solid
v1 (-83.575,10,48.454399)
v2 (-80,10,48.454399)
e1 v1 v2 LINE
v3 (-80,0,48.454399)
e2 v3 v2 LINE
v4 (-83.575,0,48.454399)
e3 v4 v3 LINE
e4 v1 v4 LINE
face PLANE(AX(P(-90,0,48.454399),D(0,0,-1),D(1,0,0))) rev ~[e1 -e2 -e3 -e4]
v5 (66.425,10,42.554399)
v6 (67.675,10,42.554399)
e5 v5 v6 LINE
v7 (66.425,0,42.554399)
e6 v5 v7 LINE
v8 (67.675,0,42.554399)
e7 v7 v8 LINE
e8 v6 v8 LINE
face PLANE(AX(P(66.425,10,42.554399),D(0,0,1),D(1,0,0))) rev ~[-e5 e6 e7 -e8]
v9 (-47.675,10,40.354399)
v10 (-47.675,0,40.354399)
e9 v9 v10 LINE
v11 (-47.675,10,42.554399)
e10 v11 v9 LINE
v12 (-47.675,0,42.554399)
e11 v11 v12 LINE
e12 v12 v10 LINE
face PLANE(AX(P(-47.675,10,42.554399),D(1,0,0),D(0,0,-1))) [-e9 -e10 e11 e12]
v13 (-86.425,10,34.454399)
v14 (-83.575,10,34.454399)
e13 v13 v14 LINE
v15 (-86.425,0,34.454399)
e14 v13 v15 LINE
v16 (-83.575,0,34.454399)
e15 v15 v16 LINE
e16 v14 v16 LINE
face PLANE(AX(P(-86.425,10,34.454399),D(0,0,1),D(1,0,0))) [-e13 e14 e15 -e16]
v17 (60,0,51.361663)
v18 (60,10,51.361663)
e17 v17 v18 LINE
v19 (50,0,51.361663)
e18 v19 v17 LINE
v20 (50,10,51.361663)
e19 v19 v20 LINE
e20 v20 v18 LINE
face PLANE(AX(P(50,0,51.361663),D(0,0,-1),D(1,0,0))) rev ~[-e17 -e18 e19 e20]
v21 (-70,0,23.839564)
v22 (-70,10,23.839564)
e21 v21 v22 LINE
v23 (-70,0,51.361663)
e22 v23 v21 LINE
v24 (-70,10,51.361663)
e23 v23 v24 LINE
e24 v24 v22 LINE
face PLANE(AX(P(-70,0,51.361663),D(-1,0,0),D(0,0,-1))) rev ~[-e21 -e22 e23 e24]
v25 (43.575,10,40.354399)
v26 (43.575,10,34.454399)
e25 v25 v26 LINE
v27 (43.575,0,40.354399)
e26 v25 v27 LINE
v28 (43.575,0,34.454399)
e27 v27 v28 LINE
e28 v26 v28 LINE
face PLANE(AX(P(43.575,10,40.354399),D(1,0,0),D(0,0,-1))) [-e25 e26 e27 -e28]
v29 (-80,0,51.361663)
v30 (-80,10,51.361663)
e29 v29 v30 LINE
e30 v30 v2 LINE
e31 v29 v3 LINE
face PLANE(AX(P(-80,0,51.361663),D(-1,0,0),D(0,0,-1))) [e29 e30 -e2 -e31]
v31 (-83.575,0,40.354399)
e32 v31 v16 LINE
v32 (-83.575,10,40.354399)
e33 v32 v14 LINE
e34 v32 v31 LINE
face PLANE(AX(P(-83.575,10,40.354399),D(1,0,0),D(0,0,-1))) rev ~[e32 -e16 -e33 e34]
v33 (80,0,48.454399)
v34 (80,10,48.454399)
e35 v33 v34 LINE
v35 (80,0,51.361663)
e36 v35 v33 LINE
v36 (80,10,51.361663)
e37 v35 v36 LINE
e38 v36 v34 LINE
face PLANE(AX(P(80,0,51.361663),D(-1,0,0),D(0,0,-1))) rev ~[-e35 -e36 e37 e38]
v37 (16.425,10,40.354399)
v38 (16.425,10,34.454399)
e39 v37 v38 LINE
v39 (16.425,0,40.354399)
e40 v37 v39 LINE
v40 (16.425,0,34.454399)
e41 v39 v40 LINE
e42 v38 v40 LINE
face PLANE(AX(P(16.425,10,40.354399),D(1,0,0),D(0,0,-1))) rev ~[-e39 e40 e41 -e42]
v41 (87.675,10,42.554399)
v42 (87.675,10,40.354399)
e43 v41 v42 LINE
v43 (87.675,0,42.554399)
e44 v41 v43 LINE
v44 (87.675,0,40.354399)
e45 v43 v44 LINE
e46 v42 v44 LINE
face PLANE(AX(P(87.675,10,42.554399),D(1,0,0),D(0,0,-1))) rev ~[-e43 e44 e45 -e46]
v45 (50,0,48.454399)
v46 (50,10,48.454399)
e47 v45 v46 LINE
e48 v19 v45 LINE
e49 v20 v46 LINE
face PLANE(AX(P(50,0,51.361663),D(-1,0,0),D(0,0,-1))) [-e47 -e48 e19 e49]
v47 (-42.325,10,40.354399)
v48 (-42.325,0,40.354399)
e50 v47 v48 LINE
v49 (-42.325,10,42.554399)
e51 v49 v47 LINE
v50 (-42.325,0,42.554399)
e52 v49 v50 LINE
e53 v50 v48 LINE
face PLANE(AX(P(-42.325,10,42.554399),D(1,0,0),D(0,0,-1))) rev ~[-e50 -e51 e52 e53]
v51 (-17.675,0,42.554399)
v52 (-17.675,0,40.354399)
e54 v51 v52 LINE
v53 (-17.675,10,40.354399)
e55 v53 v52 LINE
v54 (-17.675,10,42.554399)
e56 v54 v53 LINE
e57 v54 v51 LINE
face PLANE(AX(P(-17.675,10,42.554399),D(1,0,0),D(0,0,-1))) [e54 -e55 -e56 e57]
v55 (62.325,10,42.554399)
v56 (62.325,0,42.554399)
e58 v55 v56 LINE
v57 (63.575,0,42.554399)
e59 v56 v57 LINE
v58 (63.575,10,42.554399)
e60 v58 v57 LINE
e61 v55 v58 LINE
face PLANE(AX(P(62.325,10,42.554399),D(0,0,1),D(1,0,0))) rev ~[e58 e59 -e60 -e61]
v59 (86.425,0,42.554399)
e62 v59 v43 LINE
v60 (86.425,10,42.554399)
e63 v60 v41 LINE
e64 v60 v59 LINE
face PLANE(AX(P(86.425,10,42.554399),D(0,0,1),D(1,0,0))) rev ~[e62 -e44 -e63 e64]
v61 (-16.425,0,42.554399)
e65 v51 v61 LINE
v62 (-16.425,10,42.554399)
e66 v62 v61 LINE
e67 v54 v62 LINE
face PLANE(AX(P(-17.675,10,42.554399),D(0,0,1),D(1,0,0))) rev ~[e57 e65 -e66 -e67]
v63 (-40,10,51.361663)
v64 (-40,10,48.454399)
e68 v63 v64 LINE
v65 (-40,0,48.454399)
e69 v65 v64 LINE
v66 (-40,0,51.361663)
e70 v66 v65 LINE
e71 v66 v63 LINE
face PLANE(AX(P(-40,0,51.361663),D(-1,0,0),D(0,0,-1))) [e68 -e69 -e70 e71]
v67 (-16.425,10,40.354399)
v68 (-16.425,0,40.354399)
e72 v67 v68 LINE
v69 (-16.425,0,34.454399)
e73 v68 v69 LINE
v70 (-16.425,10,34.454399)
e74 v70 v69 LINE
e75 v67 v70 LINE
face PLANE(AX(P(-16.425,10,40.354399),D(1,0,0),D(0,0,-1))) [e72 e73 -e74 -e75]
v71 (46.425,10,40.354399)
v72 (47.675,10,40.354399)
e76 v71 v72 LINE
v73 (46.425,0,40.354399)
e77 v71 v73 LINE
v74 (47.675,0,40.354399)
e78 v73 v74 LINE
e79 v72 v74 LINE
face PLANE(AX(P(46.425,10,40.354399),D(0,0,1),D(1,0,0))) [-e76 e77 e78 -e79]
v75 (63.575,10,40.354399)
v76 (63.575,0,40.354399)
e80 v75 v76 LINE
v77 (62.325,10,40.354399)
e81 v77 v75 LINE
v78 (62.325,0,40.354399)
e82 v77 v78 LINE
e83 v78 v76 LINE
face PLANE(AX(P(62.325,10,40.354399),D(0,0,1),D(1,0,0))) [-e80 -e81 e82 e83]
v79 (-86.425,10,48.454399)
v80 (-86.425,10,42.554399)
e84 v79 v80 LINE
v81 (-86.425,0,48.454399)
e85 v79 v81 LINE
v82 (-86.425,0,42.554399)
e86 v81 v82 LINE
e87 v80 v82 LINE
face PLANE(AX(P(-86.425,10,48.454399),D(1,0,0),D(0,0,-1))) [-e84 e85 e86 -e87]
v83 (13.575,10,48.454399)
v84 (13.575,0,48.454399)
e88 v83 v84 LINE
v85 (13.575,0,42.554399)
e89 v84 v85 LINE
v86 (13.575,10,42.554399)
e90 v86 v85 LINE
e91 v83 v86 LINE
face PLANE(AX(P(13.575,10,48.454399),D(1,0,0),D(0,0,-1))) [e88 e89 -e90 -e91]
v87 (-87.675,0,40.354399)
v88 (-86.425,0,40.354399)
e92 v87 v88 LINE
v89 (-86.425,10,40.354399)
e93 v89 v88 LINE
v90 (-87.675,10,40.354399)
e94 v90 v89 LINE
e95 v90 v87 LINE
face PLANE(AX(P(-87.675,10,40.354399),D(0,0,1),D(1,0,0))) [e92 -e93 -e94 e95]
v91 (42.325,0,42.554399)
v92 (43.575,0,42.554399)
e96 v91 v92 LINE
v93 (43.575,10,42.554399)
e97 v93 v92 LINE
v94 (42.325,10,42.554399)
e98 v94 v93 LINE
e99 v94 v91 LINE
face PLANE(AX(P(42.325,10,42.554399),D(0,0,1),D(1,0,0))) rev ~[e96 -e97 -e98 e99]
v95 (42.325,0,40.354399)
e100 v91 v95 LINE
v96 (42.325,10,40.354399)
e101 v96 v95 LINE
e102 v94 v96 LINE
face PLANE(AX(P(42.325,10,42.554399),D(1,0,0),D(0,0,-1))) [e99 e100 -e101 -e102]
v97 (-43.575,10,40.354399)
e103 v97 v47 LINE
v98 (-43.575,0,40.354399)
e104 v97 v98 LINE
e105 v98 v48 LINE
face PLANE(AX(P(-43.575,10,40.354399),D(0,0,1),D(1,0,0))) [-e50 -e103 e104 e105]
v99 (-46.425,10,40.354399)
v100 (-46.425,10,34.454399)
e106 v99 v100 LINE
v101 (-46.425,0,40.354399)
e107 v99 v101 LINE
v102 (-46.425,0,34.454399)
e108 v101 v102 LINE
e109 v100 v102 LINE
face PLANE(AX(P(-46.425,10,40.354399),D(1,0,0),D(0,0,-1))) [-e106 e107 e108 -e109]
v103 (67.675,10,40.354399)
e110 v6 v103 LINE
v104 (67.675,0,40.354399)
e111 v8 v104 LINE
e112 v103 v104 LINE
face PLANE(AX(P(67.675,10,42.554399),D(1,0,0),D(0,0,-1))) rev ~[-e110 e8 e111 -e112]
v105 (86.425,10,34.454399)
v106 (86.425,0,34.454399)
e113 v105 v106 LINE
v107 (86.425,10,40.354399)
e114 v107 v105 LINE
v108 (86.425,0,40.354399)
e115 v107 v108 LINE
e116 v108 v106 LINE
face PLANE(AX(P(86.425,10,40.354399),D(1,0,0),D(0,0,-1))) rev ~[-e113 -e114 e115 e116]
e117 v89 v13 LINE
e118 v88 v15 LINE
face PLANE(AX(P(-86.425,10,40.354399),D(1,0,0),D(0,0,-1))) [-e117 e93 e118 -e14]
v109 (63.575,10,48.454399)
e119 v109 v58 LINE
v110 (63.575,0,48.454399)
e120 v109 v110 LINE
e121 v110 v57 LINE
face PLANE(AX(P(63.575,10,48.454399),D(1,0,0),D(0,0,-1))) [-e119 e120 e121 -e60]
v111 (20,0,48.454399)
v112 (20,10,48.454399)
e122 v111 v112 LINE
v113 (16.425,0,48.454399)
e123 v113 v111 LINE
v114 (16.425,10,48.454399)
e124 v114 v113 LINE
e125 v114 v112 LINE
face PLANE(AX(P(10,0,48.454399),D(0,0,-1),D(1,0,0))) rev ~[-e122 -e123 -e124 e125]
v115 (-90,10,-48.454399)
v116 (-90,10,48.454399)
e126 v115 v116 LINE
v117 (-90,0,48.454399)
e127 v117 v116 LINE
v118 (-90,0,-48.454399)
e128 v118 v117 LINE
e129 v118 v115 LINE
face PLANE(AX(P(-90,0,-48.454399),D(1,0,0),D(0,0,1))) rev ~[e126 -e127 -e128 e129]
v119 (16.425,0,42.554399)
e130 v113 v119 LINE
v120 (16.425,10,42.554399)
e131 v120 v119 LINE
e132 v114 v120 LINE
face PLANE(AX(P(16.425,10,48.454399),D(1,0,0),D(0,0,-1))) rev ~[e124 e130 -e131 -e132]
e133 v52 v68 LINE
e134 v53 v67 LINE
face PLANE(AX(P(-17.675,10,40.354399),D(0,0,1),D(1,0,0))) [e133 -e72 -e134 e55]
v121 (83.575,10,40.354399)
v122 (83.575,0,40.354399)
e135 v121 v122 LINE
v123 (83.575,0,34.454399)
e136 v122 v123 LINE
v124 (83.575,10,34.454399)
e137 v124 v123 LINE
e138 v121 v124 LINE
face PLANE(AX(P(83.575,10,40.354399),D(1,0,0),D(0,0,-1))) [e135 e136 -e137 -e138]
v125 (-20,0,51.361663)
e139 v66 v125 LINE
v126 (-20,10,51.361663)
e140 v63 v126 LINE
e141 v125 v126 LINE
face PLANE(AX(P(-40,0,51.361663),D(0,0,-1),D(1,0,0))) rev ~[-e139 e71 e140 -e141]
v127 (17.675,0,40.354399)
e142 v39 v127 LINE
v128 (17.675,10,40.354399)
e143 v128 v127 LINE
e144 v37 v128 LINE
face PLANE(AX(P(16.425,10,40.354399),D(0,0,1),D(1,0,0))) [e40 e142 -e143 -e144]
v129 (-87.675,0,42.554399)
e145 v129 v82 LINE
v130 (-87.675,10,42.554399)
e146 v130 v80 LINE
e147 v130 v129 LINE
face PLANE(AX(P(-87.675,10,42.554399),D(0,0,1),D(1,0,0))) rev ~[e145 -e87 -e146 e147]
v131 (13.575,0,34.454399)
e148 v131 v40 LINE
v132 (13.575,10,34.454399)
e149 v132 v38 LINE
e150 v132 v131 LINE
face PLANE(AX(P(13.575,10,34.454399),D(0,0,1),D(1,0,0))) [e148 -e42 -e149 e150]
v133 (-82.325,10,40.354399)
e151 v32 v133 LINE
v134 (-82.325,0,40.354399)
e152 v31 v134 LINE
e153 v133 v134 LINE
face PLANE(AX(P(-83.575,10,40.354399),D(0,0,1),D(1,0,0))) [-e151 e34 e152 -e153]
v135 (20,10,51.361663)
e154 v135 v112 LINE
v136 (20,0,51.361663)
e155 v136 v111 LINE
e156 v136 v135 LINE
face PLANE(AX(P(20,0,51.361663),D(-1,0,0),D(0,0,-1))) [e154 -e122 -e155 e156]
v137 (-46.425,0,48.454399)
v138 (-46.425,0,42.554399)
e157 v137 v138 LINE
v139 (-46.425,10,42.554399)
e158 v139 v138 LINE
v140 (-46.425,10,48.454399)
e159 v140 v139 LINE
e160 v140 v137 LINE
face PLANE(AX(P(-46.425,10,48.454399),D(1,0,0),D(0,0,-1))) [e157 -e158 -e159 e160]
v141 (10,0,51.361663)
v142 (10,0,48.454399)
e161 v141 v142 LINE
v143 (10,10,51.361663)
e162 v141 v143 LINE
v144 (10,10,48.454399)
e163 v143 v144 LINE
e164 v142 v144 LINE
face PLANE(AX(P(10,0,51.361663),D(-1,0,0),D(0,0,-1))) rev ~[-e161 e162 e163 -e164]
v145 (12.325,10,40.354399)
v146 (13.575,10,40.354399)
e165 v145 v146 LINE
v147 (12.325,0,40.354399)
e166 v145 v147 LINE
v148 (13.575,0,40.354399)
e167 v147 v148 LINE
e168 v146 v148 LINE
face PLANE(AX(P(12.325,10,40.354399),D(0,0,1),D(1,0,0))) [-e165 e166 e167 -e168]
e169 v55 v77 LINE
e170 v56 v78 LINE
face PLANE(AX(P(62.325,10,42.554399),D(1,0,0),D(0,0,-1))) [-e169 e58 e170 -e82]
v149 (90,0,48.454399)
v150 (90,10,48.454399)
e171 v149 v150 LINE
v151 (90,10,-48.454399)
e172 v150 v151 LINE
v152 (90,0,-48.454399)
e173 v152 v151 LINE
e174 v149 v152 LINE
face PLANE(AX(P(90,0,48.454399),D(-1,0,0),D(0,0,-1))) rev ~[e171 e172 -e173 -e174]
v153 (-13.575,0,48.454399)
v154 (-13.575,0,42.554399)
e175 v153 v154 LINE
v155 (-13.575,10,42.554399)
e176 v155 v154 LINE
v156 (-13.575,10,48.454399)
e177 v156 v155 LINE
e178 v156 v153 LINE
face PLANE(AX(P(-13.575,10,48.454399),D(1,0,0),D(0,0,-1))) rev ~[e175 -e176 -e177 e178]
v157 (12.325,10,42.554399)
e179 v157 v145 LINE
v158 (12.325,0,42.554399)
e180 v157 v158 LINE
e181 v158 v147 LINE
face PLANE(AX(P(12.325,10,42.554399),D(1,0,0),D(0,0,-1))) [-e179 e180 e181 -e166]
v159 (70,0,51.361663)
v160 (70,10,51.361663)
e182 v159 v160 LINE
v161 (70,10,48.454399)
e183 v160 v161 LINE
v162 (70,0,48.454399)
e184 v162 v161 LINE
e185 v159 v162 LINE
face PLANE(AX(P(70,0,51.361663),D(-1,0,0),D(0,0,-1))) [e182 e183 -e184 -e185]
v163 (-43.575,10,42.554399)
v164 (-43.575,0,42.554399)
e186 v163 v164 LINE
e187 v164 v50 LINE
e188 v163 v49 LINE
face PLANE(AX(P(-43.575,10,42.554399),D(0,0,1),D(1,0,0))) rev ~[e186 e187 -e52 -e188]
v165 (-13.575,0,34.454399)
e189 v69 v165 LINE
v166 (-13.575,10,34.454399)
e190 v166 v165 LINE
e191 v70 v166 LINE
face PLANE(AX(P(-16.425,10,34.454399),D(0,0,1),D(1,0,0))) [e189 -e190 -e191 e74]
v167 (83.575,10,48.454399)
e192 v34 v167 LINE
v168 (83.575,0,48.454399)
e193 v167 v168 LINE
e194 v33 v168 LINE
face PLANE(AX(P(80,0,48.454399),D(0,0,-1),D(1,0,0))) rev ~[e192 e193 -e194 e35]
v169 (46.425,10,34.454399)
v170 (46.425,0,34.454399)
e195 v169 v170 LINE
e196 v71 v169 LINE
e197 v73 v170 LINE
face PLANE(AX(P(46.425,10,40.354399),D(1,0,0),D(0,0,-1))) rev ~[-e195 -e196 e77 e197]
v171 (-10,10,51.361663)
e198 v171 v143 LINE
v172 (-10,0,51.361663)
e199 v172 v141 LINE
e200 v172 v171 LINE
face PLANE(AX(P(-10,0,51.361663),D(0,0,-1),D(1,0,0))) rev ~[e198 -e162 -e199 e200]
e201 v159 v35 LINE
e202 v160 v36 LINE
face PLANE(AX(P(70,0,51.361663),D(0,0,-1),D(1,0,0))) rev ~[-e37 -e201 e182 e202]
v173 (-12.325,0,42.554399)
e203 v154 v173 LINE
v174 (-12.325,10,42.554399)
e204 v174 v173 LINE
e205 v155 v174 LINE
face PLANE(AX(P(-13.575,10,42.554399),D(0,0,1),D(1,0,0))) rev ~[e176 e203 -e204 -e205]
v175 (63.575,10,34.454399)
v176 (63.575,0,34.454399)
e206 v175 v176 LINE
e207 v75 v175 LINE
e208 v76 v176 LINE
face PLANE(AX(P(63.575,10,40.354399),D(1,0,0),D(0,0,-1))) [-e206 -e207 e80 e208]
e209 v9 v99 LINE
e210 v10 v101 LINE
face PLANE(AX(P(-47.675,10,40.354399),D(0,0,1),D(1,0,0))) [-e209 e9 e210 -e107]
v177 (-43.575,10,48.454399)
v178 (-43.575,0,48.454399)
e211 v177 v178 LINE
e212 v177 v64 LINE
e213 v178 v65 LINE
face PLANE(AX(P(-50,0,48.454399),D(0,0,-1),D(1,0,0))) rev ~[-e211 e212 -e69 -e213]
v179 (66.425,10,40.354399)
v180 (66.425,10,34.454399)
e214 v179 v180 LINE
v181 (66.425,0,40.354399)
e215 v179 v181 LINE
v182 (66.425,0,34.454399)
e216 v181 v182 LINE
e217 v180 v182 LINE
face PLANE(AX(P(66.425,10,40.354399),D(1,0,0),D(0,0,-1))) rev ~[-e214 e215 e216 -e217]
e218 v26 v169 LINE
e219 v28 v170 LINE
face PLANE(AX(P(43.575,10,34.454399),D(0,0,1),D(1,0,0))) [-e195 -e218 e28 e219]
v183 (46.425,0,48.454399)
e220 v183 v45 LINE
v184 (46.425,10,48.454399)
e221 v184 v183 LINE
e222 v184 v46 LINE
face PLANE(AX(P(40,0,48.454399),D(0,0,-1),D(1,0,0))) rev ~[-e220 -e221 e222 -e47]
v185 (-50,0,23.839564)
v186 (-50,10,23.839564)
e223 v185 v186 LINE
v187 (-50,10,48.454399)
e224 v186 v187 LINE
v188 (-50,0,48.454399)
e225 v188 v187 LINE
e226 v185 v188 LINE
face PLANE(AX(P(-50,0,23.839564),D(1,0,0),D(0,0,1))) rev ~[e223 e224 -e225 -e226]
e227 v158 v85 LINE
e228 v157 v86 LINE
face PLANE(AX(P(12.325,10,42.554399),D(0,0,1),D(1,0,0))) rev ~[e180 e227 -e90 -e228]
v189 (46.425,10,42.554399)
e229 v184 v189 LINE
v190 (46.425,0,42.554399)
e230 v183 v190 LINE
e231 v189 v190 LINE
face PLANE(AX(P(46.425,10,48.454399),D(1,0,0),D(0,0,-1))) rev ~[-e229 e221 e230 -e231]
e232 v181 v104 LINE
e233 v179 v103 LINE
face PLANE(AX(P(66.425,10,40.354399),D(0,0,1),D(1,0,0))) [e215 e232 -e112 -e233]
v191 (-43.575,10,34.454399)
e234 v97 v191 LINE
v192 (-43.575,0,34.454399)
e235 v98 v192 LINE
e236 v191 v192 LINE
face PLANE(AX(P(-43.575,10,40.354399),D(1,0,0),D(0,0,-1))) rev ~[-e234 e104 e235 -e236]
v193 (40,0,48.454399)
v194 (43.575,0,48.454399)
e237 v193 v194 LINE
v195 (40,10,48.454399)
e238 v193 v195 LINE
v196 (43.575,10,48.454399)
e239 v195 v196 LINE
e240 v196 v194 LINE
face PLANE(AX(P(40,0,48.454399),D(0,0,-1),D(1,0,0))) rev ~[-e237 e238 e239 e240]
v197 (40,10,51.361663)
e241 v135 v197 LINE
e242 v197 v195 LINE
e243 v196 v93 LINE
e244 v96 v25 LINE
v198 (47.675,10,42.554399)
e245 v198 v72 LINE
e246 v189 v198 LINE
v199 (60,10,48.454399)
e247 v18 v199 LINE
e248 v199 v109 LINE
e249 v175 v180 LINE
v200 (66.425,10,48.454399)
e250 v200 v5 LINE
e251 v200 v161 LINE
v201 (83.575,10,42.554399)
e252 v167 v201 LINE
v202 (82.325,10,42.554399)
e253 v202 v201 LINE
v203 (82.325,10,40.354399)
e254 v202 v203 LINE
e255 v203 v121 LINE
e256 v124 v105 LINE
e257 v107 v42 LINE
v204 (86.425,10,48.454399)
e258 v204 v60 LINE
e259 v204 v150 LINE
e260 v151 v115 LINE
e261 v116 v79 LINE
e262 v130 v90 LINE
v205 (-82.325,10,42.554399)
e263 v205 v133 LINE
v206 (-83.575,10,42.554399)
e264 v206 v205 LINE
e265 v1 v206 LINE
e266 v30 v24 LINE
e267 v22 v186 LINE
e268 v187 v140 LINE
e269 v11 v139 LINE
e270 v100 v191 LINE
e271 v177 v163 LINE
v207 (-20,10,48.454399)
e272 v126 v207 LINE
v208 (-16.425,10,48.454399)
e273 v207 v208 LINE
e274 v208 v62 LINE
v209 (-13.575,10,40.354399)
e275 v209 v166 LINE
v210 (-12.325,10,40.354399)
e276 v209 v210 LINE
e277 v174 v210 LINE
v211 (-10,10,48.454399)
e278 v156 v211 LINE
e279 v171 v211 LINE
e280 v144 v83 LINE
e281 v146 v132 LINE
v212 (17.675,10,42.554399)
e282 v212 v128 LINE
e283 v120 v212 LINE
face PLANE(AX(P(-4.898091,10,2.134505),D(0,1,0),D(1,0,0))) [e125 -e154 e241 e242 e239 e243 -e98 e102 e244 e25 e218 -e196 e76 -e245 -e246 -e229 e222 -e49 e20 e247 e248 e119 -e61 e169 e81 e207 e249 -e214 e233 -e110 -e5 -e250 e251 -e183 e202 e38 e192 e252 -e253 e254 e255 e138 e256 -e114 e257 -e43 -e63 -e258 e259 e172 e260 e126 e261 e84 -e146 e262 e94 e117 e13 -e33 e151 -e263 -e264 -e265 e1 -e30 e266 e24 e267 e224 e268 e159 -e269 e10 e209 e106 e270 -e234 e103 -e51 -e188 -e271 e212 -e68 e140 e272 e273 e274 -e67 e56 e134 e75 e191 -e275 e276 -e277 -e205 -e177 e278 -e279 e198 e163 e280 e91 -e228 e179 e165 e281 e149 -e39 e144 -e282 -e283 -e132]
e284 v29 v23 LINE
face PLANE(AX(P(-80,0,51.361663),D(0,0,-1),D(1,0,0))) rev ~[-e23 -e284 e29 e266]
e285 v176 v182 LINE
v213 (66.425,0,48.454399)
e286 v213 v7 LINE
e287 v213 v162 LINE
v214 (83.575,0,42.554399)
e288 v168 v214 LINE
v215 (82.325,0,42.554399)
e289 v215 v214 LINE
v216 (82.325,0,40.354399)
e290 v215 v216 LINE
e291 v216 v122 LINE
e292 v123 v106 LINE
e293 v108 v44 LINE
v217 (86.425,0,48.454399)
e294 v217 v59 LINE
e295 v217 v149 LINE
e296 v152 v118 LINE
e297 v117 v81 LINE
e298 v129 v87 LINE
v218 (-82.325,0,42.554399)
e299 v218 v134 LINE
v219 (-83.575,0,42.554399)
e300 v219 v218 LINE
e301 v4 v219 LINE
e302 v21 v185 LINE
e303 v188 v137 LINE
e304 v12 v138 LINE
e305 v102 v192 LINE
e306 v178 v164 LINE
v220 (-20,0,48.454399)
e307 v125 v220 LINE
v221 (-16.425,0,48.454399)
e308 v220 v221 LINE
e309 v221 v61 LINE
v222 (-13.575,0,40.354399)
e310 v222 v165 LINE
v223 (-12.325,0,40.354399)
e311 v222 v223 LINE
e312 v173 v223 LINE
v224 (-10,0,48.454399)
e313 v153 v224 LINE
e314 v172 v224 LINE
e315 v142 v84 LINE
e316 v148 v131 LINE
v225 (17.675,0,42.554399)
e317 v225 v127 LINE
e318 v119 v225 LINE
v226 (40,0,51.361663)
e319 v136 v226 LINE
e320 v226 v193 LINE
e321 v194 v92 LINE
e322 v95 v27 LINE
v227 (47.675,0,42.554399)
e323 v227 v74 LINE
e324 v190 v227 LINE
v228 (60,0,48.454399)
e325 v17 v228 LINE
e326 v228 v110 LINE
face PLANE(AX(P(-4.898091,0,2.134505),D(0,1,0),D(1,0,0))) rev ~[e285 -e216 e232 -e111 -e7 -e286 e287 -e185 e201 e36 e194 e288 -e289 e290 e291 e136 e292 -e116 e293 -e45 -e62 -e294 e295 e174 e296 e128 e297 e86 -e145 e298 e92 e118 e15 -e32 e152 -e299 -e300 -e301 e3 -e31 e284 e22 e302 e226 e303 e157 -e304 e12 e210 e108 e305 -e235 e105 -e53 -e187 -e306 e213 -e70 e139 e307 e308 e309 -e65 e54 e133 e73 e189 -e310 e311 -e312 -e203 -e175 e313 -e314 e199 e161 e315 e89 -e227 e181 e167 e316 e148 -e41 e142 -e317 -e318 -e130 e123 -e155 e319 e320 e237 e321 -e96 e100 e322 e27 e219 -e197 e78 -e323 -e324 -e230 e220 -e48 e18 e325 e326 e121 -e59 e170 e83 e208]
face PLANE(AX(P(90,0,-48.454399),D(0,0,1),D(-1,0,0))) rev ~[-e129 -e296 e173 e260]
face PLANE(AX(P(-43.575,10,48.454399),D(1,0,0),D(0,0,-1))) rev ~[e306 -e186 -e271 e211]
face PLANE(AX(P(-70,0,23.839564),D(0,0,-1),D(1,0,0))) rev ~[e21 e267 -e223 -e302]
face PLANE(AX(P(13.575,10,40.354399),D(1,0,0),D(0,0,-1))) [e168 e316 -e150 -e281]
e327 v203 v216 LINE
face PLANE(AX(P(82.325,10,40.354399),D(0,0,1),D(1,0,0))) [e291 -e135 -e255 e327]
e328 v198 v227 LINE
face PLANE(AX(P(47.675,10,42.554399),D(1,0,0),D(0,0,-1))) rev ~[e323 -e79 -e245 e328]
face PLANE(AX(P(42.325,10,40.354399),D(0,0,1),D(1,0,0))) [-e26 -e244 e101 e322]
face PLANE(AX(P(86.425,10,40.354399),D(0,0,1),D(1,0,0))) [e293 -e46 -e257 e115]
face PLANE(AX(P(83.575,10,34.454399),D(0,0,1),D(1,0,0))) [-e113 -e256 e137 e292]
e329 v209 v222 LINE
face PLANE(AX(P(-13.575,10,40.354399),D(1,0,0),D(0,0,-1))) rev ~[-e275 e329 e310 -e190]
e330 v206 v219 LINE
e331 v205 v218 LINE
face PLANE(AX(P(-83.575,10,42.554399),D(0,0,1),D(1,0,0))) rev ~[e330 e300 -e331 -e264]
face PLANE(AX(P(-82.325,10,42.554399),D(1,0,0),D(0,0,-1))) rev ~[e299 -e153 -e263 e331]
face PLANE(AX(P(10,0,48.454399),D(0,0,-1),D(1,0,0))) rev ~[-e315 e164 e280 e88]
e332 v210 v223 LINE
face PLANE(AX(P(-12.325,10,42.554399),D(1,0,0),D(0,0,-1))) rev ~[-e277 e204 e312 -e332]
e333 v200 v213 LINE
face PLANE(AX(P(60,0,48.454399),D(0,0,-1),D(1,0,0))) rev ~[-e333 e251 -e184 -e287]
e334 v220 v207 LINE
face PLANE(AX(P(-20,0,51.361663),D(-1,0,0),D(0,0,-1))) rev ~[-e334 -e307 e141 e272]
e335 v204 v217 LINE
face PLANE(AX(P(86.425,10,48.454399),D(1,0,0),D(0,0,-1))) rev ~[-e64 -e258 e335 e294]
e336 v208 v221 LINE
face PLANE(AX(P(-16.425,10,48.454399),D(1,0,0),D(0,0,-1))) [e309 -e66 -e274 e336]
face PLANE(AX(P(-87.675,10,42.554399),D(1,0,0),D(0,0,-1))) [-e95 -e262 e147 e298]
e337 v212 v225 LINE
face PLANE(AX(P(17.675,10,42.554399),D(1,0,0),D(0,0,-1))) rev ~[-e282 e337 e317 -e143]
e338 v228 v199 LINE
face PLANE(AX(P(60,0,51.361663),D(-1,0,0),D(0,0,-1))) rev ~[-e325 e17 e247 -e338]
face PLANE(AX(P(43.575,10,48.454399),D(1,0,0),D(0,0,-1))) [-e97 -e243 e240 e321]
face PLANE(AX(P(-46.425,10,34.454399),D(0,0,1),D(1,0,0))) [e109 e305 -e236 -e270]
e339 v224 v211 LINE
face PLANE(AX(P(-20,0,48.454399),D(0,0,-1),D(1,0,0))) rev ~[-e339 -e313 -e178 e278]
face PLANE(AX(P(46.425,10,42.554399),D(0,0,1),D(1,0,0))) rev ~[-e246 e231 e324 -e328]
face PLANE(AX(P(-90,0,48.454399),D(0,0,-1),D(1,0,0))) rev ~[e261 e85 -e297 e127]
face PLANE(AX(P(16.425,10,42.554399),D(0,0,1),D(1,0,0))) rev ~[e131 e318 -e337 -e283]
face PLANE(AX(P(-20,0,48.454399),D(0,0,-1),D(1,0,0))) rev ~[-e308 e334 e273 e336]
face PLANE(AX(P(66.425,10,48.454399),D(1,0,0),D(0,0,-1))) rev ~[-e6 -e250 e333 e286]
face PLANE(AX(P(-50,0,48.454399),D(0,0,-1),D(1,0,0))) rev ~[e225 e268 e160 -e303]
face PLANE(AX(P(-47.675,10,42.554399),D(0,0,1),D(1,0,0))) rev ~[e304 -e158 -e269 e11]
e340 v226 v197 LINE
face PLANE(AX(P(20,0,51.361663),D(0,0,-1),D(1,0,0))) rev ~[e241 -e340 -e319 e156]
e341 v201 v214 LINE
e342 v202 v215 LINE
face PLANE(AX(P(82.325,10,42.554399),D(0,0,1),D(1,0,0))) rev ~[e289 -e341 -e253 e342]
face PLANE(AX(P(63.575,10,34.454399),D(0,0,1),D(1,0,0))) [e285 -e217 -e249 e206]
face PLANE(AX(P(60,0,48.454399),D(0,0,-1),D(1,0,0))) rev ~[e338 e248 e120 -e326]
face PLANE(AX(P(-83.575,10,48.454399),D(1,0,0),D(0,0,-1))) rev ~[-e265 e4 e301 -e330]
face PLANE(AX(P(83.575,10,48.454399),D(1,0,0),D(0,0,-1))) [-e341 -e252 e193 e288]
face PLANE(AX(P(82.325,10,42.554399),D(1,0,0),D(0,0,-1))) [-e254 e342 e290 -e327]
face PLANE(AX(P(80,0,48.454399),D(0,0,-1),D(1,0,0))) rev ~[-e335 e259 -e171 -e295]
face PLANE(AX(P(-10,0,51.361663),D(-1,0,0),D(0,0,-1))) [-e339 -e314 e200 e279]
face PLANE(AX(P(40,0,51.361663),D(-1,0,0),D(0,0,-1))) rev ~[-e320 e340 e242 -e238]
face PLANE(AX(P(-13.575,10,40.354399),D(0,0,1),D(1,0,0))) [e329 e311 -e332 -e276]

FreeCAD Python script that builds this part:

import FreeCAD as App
import Part
import Sketcher

doc = App.newDocument("Part")
params = doc.addObject("Spreadsheet::Sheet", "Params")
for row, (alias, value) in enumerate([
    ("sketch1_width", "180 mm"),
    ("pad1_length", "10 mm"),
    ("sketch2_height", "5.9 mm"),
    ("sketch2_height2", "2.2 mm"),
    ("sketch2_width", "2.85 mm"),
    ("sketch2_width2", "1.25 mm"),
    ("pocket1_length", "10 mm"),
], start=1):
    params.set(f"A{row}", alias)
    params.set(f"B{row}", "=" + value)
    params.setAlias(f"B{row}", alias)

body = doc.addObject("PartDesign::Body", "Body")

# Sketch on XZ plane
sketch1 = body.newObject("Sketcher::SketchObject", "Sketch")
sketch1.AttachmentSupport = (doc.getObject("XZ_Plane"), [""])
sketch1.MapMode = "FlatFace"
sketch1.addGeometry([
    Part.LineSegment(App.Vector(90, 48.5, 0), App.Vector(90, -48.5, 0)),  # 0
    Part.LineSegment(App.Vector(90, -48.5, 0), App.Vector(-90, -48.5, 0)),  # 1
    Part.LineSegment(App.Vector(-90, -48.5, 0), App.Vector(-90, 48.5, 0)),  # 2
    Part.LineSegment(App.Vector(-90, 48.5, 0), App.Vector(-80, 48.5, 0)),  # 3
    Part.LineSegment(App.Vector(-80, 48.5, 0), App.Vector(-80, 51.4, 0)),  # 4
    Part.LineSegment(App.Vector(-80, 51.4, 0), App.Vector(-70, 51.4, 0)),  # 5
    Part.LineSegment(App.Vector(-70, 51.4, 0), App.Vector(-70, 23.8, 0)),  # 6
    Part.LineSegment(App.Vector(-70, 23.8, 0), App.Vector(-50, 23.8, 0)),  # 7
    Part.LineSegment(App.Vector(-50, 23.8, 0), App.Vector(-50, 48.5, 0)),  # 8
    Part.LineSegment(App.Vector(-50, 48.5, 0), App.Vector(-40, 48.5, 0)),  # 9
    Part.LineSegment(App.Vector(-40, 48.5, 0), App.Vector(-40, 51.4, 0)),  # 10
    Part.LineSegment(App.Vector(-40, 51.4, 0), App.Vector(-20, 51.4, 0)),  # 11
    Part.LineSegment(App.Vector(-20, 51.4, 0), App.Vector(-20, 48.5, 0)),  # 12
    Part.LineSegment(App.Vector(-20, 48.5, 0), App.Vector(-10, 48.5, 0)),  # 13
    Part.LineSegment(App.Vector(-10, 48.5, 0), App.Vector(-10, 51.4, 0)),  # 14
    Part.LineSegment(App.Vector(-10, 51.4, 0), App.Vector(10, 51.4, 0)),  # 15
    Part.LineSegment(App.Vector(10, 51.4, 0), App.Vector(10, 48.5, 0)),  # 16
    Part.LineSegment(App.Vector(10, 48.5, 0), App.Vector(20, 48.5, 0)),  # 17
    Part.LineSegment(App.Vector(20, 48.5, 0), App.Vector(20, 51.4, 0)),  # 18
    Part.LineSegment(App.Vector(20, 51.4, 0), App.Vector(40, 51.4, 0)),  # 19
    Part.LineSegment(App.Vector(40, 51.4, 0), App.Vector(40, 48.5, 0)),  # 20
    Part.LineSegment(App.Vector(40, 48.5, 0), App.Vector(50, 48.5, 0)),  # 21
    Part.LineSegment(App.Vector(50, 48.5, 0), App.Vector(50, 51.4, 0)),  # 22
    Part.LineSegment(App.Vector(50, 51.4, 0), App.Vector(60, 51.4, 0)),  # 23
    Part.LineSegment(App.Vector(60, 51.4, 0), App.Vector(60, 48.5, 0)),  # 24
    Part.LineSegment(App.Vector(60, 48.5, 0), App.Vector(70, 48.5, 0)),  # 25
    Part.LineSegment(App.Vector(70, 48.5, 0), App.Vector(70, 51.4, 0)),  # 26
    Part.LineSegment(App.Vector(70, 51.4, 0), App.Vector(80, 51.4, 0)),  # 27
    Part.LineSegment(App.Vector(80, 51.4, 0), App.Vector(80, 48.5, 0)),  # 28
    Part.LineSegment(App.Vector(80, 48.5, 0), App.Vector(90, 48.5, 0)),  # 29
], False)
sketch1.addConstraint([
    Sketcher.Constraint("Coincident", 0, 2, 1, 1),
    Sketcher.Constraint("Coincident", 1, 2, 2, 1),
    Sketcher.Constraint("Coincident", 2, 2, 3, 1),
    Sketcher.Constraint("Coincident", 3, 2, 4, 1),
    Sketcher.Constraint("Coincident", 4, 2, 5, 1),
    Sketcher.Constraint("Coincident", 5, 2, 6, 1),
    Sketcher.Constraint("Coincident", 6, 2, 7, 1),
    Sketcher.Constraint("Coincident", 7, 2, 8, 1),
    Sketcher.Constraint("Coincident", 8, 2, 9, 1),
    Sketcher.Constraint("Coincident", 9, 2, 10, 1),
    Sketcher.Constraint("Coincident", 10, 2, 11, 1),
    Sketcher.Constraint("Coincident", 11, 2, 12, 1),
    Sketcher.Constraint("Coincident", 12, 2, 13, 1),
    Sketcher.Constraint("Coincident", 13, 2, 14, 1),
    Sketcher.Constraint("Coincident", 14, 2, 15, 1),
    Sketcher.Constraint("Coincident", 15, 2, 16, 1),
    Sketcher.Constraint("Coincident", 16, 2, 17, 1),
    Sketcher.Constraint("Coincident", 17, 2, 18, 1),
    Sketcher.Constraint("Coincident", 18, 2, 19, 1),
    Sketcher.Constraint("Coincident", 19, 2, 20, 1),
    Sketcher.Constraint("Coincident", 20, 2, 21, 1),
    Sketcher.Constraint("Coincident", 21, 2, 22, 1),
    Sketcher.Constraint("Coincident", 22, 2, 23, 1),
    Sketcher.Constraint("Coincident", 23, 2, 24, 1),
    Sketcher.Constraint("Coincident", 24, 2, 25, 1),
    Sketcher.Constraint("Coincident", 25, 2, 26, 1),
    Sketcher.Constraint("Coincident", 26, 2, 27, 1),
    Sketcher.Constraint("Coincident", 27, 2, 28, 1),
    Sketcher.Constraint("Coincident", 28, 2, 29, 1),
    Sketcher.Constraint("Coincident", 29, 2, 0, 1),
    Sketcher.Constraint("Vertical", 0),
    Sketcher.Constraint("Horizontal", 1),
    Sketcher.Constraint("Vertical", 2),
    Sketcher.Constraint("Horizontal", 3),
    Sketcher.Constraint("Vertical", 4),
    Sketcher.Constraint("Horizontal", 5),
    Sketcher.Constraint("Vertical", 6),
    Sketcher.Constraint("Horizontal", 7),
    Sketcher.Constraint("Vertical", 8),
    Sketcher.Constraint("Horizontal", 9),
    Sketcher.Constraint("Vertical", 10),
    Sketcher.Constraint("Horizontal", 11),
    Sketcher.Constraint("Vertical", 12),
    Sketcher.Constraint("Horizontal", 13),
    Sketcher.Constraint("Vertical", 14),
    Sketcher.Constraint("Horizontal", 15),
    Sketcher.Constraint("Vertical", 16),
    Sketcher.Constraint("Horizontal", 17),
    Sketcher.Constraint("Vertical", 18),
    Sketcher.Constraint("Horizontal", 19),
    Sketcher.Constraint("Vertical", 20),
    Sketcher.Constraint("Horizontal", 21),
    Sketcher.Constraint("Vertical", 22),
    Sketcher.Constraint("Horizontal", 23),
    Sketcher.Constraint("Vertical", 24),
    Sketcher.Constraint("Horizontal", 25),
    Sketcher.Constraint("Vertical", 26),
    Sketcher.Constraint("Horizontal", 27),
    Sketcher.Constraint("Vertical", 28),
    Sketcher.Constraint("Horizontal", 29),
    Sketcher.Constraint("Symmetric", 0, 2, 2, 2, -1, 1),
    Sketcher.Constraint("Symmetric", 13, 2, 16, 2, -2),
    Sketcher.Constraint("Symmetric", 11, 2, 18, 2, -2),
    Sketcher.Constraint("Symmetric", 9, 2, 20, 2, -2),
    Sketcher.Constraint("Symmetric", 5, 2, 26, 2, -2),
    Sketcher.Constraint("Symmetric", 3, 2, 28, 2, -2),
    Sketcher.Constraint("Horizontal", 3, 2, 8, 2),
    Sketcher.Constraint("Horizontal", 5, 2, 10, 2),
    Sketcher.Constraint("Horizontal", 9, 2, 12, 2),
    Sketcher.Constraint("Horizontal", 11, 2, 14, 2),
    Sketcher.Constraint("Horizontal", 19, 2, 22, 2),
    Sketcher.Constraint("Horizontal", 21, 2, 24, 2),
    Sketcher.Constraint("Equal", 3, 5),
    Sketcher.Constraint("Equal", 5, 9),
    Sketcher.Constraint("Equal", 7, 11),
    Sketcher.Constraint("Equal", 9, 13),
    Sketcher.Constraint("Equal", 11, 15),
    Sketcher.Constraint("Equal", 17, 21),
    Sketcher.Constraint("Equal", 21, 23),
    Sketcher.Constraint("Equal", 23, 25),
    Sketcher.Constraint("DistanceX", 1, 2, 1, 1, 180.0),
    Sketcher.Constraint("DistanceY", 6, 2, 6, 1, 27.522099),
    Sketcher.Constraint("DistanceY", 0, 2, -1, 1, 48.454399),
    Sketcher.Constraint("DistanceY", 4, 1, 4, 2, 2.907264),
])
sketch1.setExpression("Constraints[80]", "Params.sketch1_width")
pad1 = body.newObject("PartDesign::Pad", "Pad")
pad1.Profile = sketch1
pad1.setExpression("Length", "Params.pad1_length")
pad1.Reversed = True

# Sketch on XZ plane
sketch2 = body.newObject("Sketcher::SketchObject", "Sketch001")
sketch2.AttachmentSupport = (doc.getObject("XZ_Plane"), [""])
sketch2.MapMode = "FlatFace"
sketch2.AttachmentOffset = App.Placement(App.Vector(0, 0, -10), App.Rotation())
sketch2.addGeometry([
    Part.LineSegment(App.Vector(-86.4, 42.6, 0), App.Vector(-86.4, 48.5, 0)),  # 0
    Part.LineSegment(App.Vector(-86.4, 48.5, 0), App.Vector(-83.6, 48.5, 0)),  # 1
    Part.LineSegment(App.Vector(-83.6, 48.5, 0), App.Vector(-83.6, 42.6, 0)),  # 2
    Part.LineSegment(App.Vector(-83.6, 42.6, 0), App.Vector(-82.3, 42.6, 0)),  # 3
    Part.LineSegment(App.Vector(-82.3, 42.6, 0), App.Vector(-82.3, 40.4, 0)),  # 4
    Part.LineSegment(App.Vector(-82.3, 40.4, 0), App.Vector(-83.6, 40.4, 0)),  # 5
    Part.LineSegment(App.Vector(-83.6, 40.4, 0), App.Vector(-83.6, 34.5, 0)),  # 6
    Part.LineSegment(App.Vector(-83.6, 34.5, 0), App.Vector(-86.4, 34.5, 0)),  # 7
    Part.LineSegment(App.Vector(-86.4, 34.5, 0), App.Vector(-86.4, 40.4, 0)),  # 8
    Part.LineSegment(App.Vector(-86.4, 40.4, 0), App.Vector(-87.7, 40.4, 0)),  # 9
    Part.LineSegment(App.Vector(-87.7, 40.4, 0), App.Vector(-87.7, 42.6, 0)),  # 10
    Part.LineSegment(App.Vector(-87.7, 42.6, 0), App.Vector(-86.4, 42.6, 0)),  # 11
    Part.LineSegment(App.Vector(-46.4, 42.6, 0), App.Vector(-46.4, 48.5, 0)),  # 12
    Part.LineSegment(App.Vector(-46.4, 48.5, 0), App.Vector(-43.6, 48.5, 0)),  # 13
    Part.LineSegment(App.Vector(-43.6, 48.5, 0), App.Vector(-43.6, 42.6, 0)),  # 14
    Part.LineSegment(App.Vector(-43.6, 42.6, 0), App.Vector(-42.3, 42.6, 0)),  # 15
    Part.LineSegment(App.Vector(-42.3, 42.6, 0), App.Vector(-42.3, 40.4, 0)),  # 16
    Part.LineSegment(App.Vector(-42.3, 40.4, 0), App.Vector(-43.6, 40.4, 0)),  # 17
    Part.LineSegment(App.Vector(-43.6, 40.4, 0), App.Vector(-43.6, 34.5, 0)),  # 18
    Part.LineSegment(App.Vector(-43.6, 34.5, 0), App.Vector(-46.4, 34.5, 0)),  # 19
    Part.LineSegment(App.Vector(-46.4, 34.5, 0), App.Vector(-46.4, 40.4, 0)),  # 20
    Part.LineSegment(App.Vector(-46.4, 40.4, 0), App.Vector(-47.7, 40.4, 0)),  # 21
    Part.LineSegment(App.Vector(-47.7, 40.4, 0), App.Vector(-47.7, 42.6, 0)),  # 22
    Part.LineSegment(App.Vector(-47.7, 42.6, 0), App.Vector(-46.4, 42.6, 0)),  # 23
    Part.LineSegment(App.Vector(-16.4, 42.6, 0), App.Vector(-16.4, 48.5, 0)),  # 24
    Part.LineSegment(App.Vector(-16.4, 48.5, 0), App.Vector(-13.6, 48.5, 0)),  # 25
    Part.LineSegment(App.Vector(-13.6, 48.5, 0), App.Vector(-13.6, 42.6, 0)),  # 26
    Part.LineSegment(App.Vector(-13.6, 42.6, 0), App.Vector(-12.3, 42.6, 0)),  # 27
    Part.LineSegment(App.Vector(-12.3, 42.6, 0), App.Vector(-12.3, 40.4, 0)),  # 28
    Part.LineSegment(App.Vector(-12.3, 40.4, 0), App.Vector(-13.6, 40.4, 0)),  # 29
    Part.LineSegment(App.Vector(-13.6, 40.4, 0), App.Vector(-13.6, 34.5, 0)),  # 30
    Part.LineSegment(App.Vector(-13.6, 34.5, 0), App.Vector(-16.4, 34.5, 0)),  # 31
    Part.LineSegment(App.Vector(-16.4, 34.5, 0), App.Vector(-16.4, 40.4, 0)),  # 32
    Part.LineSegment(App.Vector(-16.4, 40.4, 0), App.Vector(-17.7, 40.4, 0)),  # 33
    Part.LineSegment(App.Vector(-17.7, 40.4, 0), App.Vector(-17.7, 42.6, 0)),  # 34
    Part.LineSegment(App.Vector(-17.7, 42.6, 0), App.Vector(-16.4, 42.6, 0)),  # 35
    Part.LineSegment(App.Vector(13.6, 42.6, 0), App.Vector(13.6, 48.5, 0)),  # 36
    Part.LineSegment(App.Vector(13.6, 48.5, 0), App.Vector(16.4, 48.5, 0)),  # 37
    Part.LineSegment(App.Vector(16.4, 48.5, 0), App.Vector(16.4, 42.6, 0)),  # 38
    Part.LineSegment(App.Vector(16.4, 42.6, 0), App.Vector(17.7, 42.6, 0)),  # 39
    Part.LineSegment(App.Vector(17.7, 42.6, 0), App.Vector(17.7, 40.4, 0)),  # 40
    Part.LineSegment(App.Vector(17.7, 40.4, 0), App.Vector(16.4, 40.4, 0)),  # 41
    Part.LineSegment(App.Vector(16.4, 40.4, 0), App.Vector(16.4, 34.5, 0)),  # 42
    Part.LineSegment(App.Vector(16.4, 34.5, 0), App.Vector(13.6, 34.5, 0)),  # 43
    Part.LineSegment(App.Vector(13.6, 34.5, 0), App.Vector(13.6, 40.4, 0)),  # 44
    Part.LineSegment(App.Vector(13.6, 40.4, 0), App.Vector(12.3, 40.4, 0)),  # 45
    Part.LineSegment(App.Vector(12.3, 40.4, 0), App.Vector(12.3, 42.6, 0)),  # 46
    Part.LineSegment(App.Vector(12.3, 42.6, 0), App.Vector(13.6, 42.6, 0)),  # 47
    Part.LineSegment(App.Vector(43.6, 42.6, 0), App.Vector(43.6, 48.5, 0)),  # 48
    Part.LineSegment(App.Vector(43.6, 48.5, 0), App.Vector(46.4, 48.5, 0)),  # 49
    Part.LineSegment(App.Vector(46.4, 48.5, 0), App.Vector(46.4, 42.6, 0)),  # 50
    Part.LineSegment(App.Vector(46.4, 42.6, 0), App.Vector(47.7, 42.6, 0)),  # 51
    Part.LineSegment(App.Vector(47.7, 42.6, 0), App.Vector(47.7, 40.4, 0)),  # 52
    Part.LineSegment(App.Vector(47.7, 40.4, 0), App.Vector(46.4, 40.4, 0)),  # 53
    Part.LineSegment(App.Vector(46.4, 40.4, 0), App.Vector(46.4, 34.5, 0)),  # 54
    Part.LineSegment(App.Vector(46.4, 34.5, 0), App.Vector(43.6, 34.5, 0)),  # 55
    Part.LineSegment(App.Vector(43.6, 34.5, 0), App.Vector(43.6, 40.4, 0)),  # 56
    Part.LineSegment(App.Vector(43.6, 40.4, 0), App.Vector(42.3, 40.4, 0)),  # 57
    Part.LineSegment(App.Vector(42.3, 40.4, 0), App.Vector(42.3, 42.6, 0)),  # 58
    Part.LineSegment(App.Vector(42.3, 42.6, 0), App.Vector(43.6, 42.6, 0)),  # 59
    Part.LineSegment(App.Vector(63.6, 42.6, 0), App.Vector(63.6, 48.5, 0)),  # 60
    Part.LineSegment(App.Vector(63.6, 48.5, 0), App.Vector(66.4, 48.5, 0)),  # 61
    Part.LineSegment(App.Vector(66.4, 48.5, 0), App.Vector(66.4, 42.6, 0)),  # 62
    Part.LineSegment(App.Vector(66.4, 42.6, 0), App.Vector(67.7, 42.6, 0)),  # 63
    Part.LineSegment(App.Vector(67.7, 42.6, 0), App.Vector(67.7, 40.4, 0)),  # 64
    Part.LineSegment(App.Vector(67.7, 40.4, 0), App.Vector(66.4, 40.4, 0)),  # 65
    Part.LineSegment(App.Vector(66.4, 40.4, 0), App.Vector(66.4, 34.5, 0)),  # 66
    Part.LineSegment(App.Vector(66.4, 34.5, 0), App.Vector(63.6, 34.5, 0)),  # 67
    Part.LineSegment(App.Vector(63.6, 34.5, 0), App.Vector(63.6, 40.4, 0)),  # 68
    Part.LineSegment(App.Vector(63.6, 40.4, 0), App.Vector(62.3, 40.4, 0)),  # 69
    Part.LineSegment(App.Vector(62.3, 40.4, 0), App.Vector(62.3, 42.6, 0)),  # 70
    Part.LineSegment(App.Vector(62.3, 42.6, 0), App.Vector(63.6, 42.6, 0)),  # 71
    Part.LineSegment(App.Vector(83.6, 42.6, 0), App.Vector(83.6, 48.5, 0)),  # 72
    Part.LineSegment(App.Vector(83.6, 48.5, 0), App.Vector(86.4, 48.5, 0)),  # 73
    Part.LineSegment(App.Vector(86.4, 48.5, 0), App.Vector(86.4, 42.6, 0)),  # 74
    Part.LineSegment(App.Vector(86.4, 42.6, 0), App.Vector(87.7, 42.6, 0)),  # 75
    Part.LineSegment(App.Vector(87.7, 42.6, 0), App.Vector(87.7, 40.4, 0)),  # 76
    Part.LineSegment(App.Vector(87.7, 40.4, 0), App.Vector(86.4, 40.4, 0)),  # 77
    Part.LineSegment(App.Vector(86.4, 40.4, 0), App.Vector(86.4, 34.5, 0)),  # 78
    Part.LineSegment(App.Vector(86.4, 34.5, 0), App.Vector(83.6, 34.5, 0)),  # 79
    Part.LineSegment(App.Vector(83.6, 34.5, 0), App.Vector(83.6, 40.4, 0)),  # 80
    Part.LineSegment(App.Vector(83.6, 40.4, 0), App.Vector(82.3, 40.4, 0)),  # 81
    Part.LineSegment(App.Vector(82.3, 40.4, 0), App.Vector(82.3, 42.6, 0)),  # 82
    Part.LineSegment(App.Vector(82.3, 42.6, 0), App.Vector(83.6, 42.6, 0)),  # 83
], False)
sketch2.addConstraint([
    Sketcher.Constraint("Coincident", 0, 2, 1, 1),
    Sketcher.Constraint("Coincident", 1, 2, 2, 1),
    Sketcher.Constraint("Coincident", 2, 2, 3, 1),
    Sketcher.Constraint("Coincident", 3, 2, 4, 1),
    Sketcher.Constraint("Coincident", 4, 2, 5, 1),
    Sketcher.Constraint("Coincident", 5, 2, 6, 1),
    Sketcher.Constraint("Coincident", 6, 2, 7, 1),
    Sketcher.Constraint("Coincident", 7, 2, 8, 1),
    Sketcher.Constraint("Coincident", 8, 2, 9, 1),
    Sketcher.Constraint("Coincident", 9, 2, 10, 1),
    Sketcher.Constraint("Coincident", 10, 2, 11, 1),
    Sketcher.Constraint("Coincident", 11, 2, 0, 1),
    Sketcher.Constraint("Coincident", 12, 2, 13, 1),
    Sketcher.Constraint("Coincident", 13, 2, 14, 1),
    Sketcher.Constraint("Coincident", 14, 2, 15, 1),
    Sketcher.Constraint("Coincident", 15, 2, 16, 1),
    Sketcher.Constraint("Coincident", 16, 2, 17, 1),
    Sketcher.Constraint("Coincident", 17, 2, 18, 1),
    Sketcher.Constraint("Coincident", 18, 2, 19, 1),
    Sketcher.Constraint("Coincident", 19, 2, 20, 1),
    Sketcher.Constraint("Coincident", 20, 2, 21, 1),
    Sketcher.Constraint("Coincident", 21, 2, 22, 1),
    Sketcher.Constraint("Coincident", 22, 2, 23, 1),
    Sketcher.Constraint("Coincident", 23, 2, 12, 1),
    Sketcher.Constraint("Coincident", 24, 2, 25, 1),
    Sketcher.Constraint("Coincident", 25, 2, 26, 1),
    Sketcher.Constraint("Coincident", 26, 2, 27, 1),
    Sketcher.Constraint("Coincident", 27, 2, 28, 1),
    Sketcher.Constraint("Coincident", 28, 2, 29, 1),
    Sketcher.Constraint("Coincident", 29, 2, 30, 1),
    Sketcher.Constraint("Coincident", 30, 2, 31, 1),
    Sketcher.Constraint("Coincident", 31, 2, 32, 1),
    Sketcher.Constraint("Coincident", 32, 2, 33, 1),
    Sketcher.Constraint("Coincident", 33, 2, 34, 1),
    Sketcher.Constraint("Coincident", 34, 2, 35, 1),
    Sketcher.Constraint("Coincident", 35, 2, 24, 1),
    Sketcher.Constraint("Coincident", 36, 2, 37, 1),
    Sketcher.Constraint("Coincident", 37, 2, 38, 1),
    Sketcher.Constraint("Coincident", 38, 2, 39, 1),
    Sketcher.Constraint("Coincident", 39, 2, 40, 1),
    Sketcher.Constraint("Coincident", 40, 2, 41, 1),
    Sketcher.Constraint("Coincident", 41, 2, 42, 1),
    Sketcher.Constraint("Coincident", 42, 2, 43, 1),
    Sketcher.Constraint("Coincident", 43, 2, 44, 1),
    Sketcher.Constraint("Coincident", 44, 2, 45, 1),
    Sketcher.Constraint("Coincident", 45, 2, 46, 1),
    Sketcher.Constraint("Coincident", 46, 2, 47, 1),
    Sketcher.Constraint("Coincident", 47, 2, 36, 1),
    Sketcher.Constraint("Coincident", 48, 2, 49, 1),
    Sketcher.Constraint("Coincident", 49, 2, 50, 1),
    Sketcher.Constraint("Coincident", 50, 2, 51, 1),
    Sketcher.Constraint("Coincident", 51, 2, 52, 1),
    Sketcher.Constraint("Coincident", 52, 2, 53, 1),
    Sketcher.Constraint("Coincident", 53, 2, 54, 1),
    Sketcher.Constraint("Coincident", 54, 2, 55, 1),
    Sketcher.Constraint("Coincident", 55, 2, 56, 1),
    Sketcher.Constraint("Coincident", 56, 2, 57, 1),
    Sketcher.Constraint("Coincident", 57, 2, 58, 1),
    Sketcher.Constraint("Coincident", 58, 2, 59, 1),
    Sketcher.Constraint("Coincident", 59, 2, 48, 1),
    Sketcher.Constraint("Coincident", 60, 2, 61, 1),
    Sketcher.Constraint("Coincident", 61, 2, 62, 1),
    Sketcher.Constraint("Coincident", 62, 2, 63, 1),
    Sketcher.Constraint("Coincident", 63, 2, 64, 1),
    Sketcher.Constraint("Coincident", 64, 2, 65, 1),
    Sketcher.Constraint("Coincident", 65, 2, 66, 1),
    Sketcher.Constraint("Coincident", 66, 2, 67, 1),
    Sketcher.Constraint("Coincident", 67, 2, 68, 1),
    Sketcher.Constraint("Coincident", 68, 2, 69, 1),
    Sketcher.Constraint("Coincident", 69, 2, 70, 1),
    Sketcher.Constraint("Coincident", 70, 2, 71, 1),
    Sketcher.Constraint("Coincident", 71, 2, 60, 1),
    Sketcher.Constraint("Coincident", 72, 2, 73, 1),
    Sketcher.Constraint("Coincident", 73, 2, 74, 1),
    Sketcher.Constraint("Coincident", 74, 2, 75, 1),
    Sketcher.Constraint("Coincident", 75, 2, 76, 1),
    Sketcher.Constraint("Coincident", 76, 2, 77, 1),
    Sketcher.Constraint("Coincident", 77, 2, 78, 1),
    Sketcher.Constraint("Coincident", 78, 2, 79, 1),
    Sketcher.Constraint("Coincident", 79, 2, 80, 1),
    Sketcher.Constraint("Coincident", 80, 2, 81, 1),
    Sketcher.Constraint("Coincident", 81, 2, 82, 1),
    Sketcher.Constraint("Coincident", 82, 2, 83, 1),
    Sketcher.Constraint("Coincident", 83, 2, 72, 1),
    Sketcher.Constraint("Vertical", 0),
    Sketcher.Constraint("Horizontal", 1),
    Sketcher.Constraint("Vertical", 2),
    Sketcher.Constraint("Horizontal", 3),
    Sketcher.Constraint("Vertical", 4),
    Sketcher.Constraint("Horizontal", 5),
    Sketcher.Constraint("Vertical", 6),
    Sketcher.Constraint("Horizontal", 7),
    Sketcher.Constraint("Vertical", 8),
    Sketcher.Constraint("Horizontal", 9),
    Sketcher.Constraint("Vertical", 10),
    Sketcher.Constraint("Horizontal", 11),
    Sketcher.Constraint("Vertical", 12),
    Sketcher.Constraint("Horizontal", 13),
    Sketcher.Constraint("Vertical", 14),
    Sketcher.Constraint("Horizontal", 15),
    Sketcher.Constraint("Vertical", 16),
    Sketcher.Constraint("Horizontal", 17),
    Sketcher.Constraint("Vertical", 18),
    Sketcher.Constraint("Horizontal", 19),
    Sketcher.Constraint("Vertical", 20),
    Sketcher.Constraint("Horizontal", 21),
    Sketcher.Constraint("Vertical", 22),
    Sketcher.Constraint("Horizontal", 23),
    Sketcher.Constraint("Vertical", 24),
    Sketcher.Constraint("Horizontal", 25),
    Sketcher.Constraint("Vertical", 26),
    Sketcher.Constraint("Horizontal", 27),
    Sketcher.Constraint("Vertical", 28),
    Sketcher.Constraint("Horizontal", 29),
    Sketcher.Constraint("Vertical", 30),
    Sketcher.Constraint("Horizontal", 31),
    Sketcher.Constraint("Vertical", 32),
    Sketcher.Constraint("Horizontal", 33),
    Sketcher.Constraint("Vertical", 34),
    Sketcher.Constraint("Horizontal", 35),
    Sketcher.Constraint("Vertical", 36),
    Sketcher.Constraint("Horizontal", 37),
    Sketcher.Constraint("Vertical", 38),
    Sketcher.Constraint("Horizontal", 39),
    Sketcher.Constraint("Vertical", 40),
    Sketcher.Constraint("Horizontal", 41),
    Sketcher.Constraint("Vertical", 42),
    Sketcher.Constraint("Horizontal", 43),
    Sketcher.Constraint("Vertical", 44),
    Sketcher.Constraint("Horizontal", 45),
    Sketcher.Constraint("Vertical", 46),
    Sketcher.Constraint("Horizontal", 47),
    Sketcher.Constraint("Vertical", 48),
    Sketcher.Constraint("Horizontal", 49),
    Sketcher.Constraint("Vertical", 50),
    Sketcher.Constraint("Horizontal", 51),
    Sketcher.Constraint("Vertical", 52),
    Sketcher.Constraint("Horizontal", 53),
    Sketcher.Constraint("Vertical", 54),
    Sketcher.Constraint("Horizontal", 55),
    Sketcher.Constraint("Vertical", 56),
    Sketcher.Constraint("Horizontal", 57),
    Sketcher.Constraint("Vertical", 58),
    Sketcher.Constraint("Horizontal", 59),
    Sketcher.Constraint("Vertical", 60),
    Sketcher.Constraint("Horizontal", 61),
    Sketcher.Constraint("Vertical", 62),
    Sketcher.Constraint("Horizontal", 63),
    Sketcher.Constraint("Vertical", 64),
    Sketcher.Constraint("Horizontal", 65),
    Sketcher.Constraint("Vertical", 66),
    Sketcher.Constraint("Horizontal", 67),
    Sketcher.Constraint("Vertical", 68),
    Sketcher.Constraint("Horizontal", 69),
    Sketcher.Constraint("Vertical", 70),
    Sketcher.Constraint("Horizontal", 71),
    Sketcher.Constraint("Vertical", 72),
    Sketcher.Constraint("Horizontal", 73),
    Sketcher.Constraint("Vertical", 74),
    Sketcher.Constraint("Horizontal", 75),
    Sketcher.Constraint("Vertical", 76),
    Sketcher.Constraint("Horizontal", 77),
    Sketcher.Constraint("Vertical", 78),
    Sketcher.Constraint("Horizontal", 79),
    Sketcher.Constraint("Vertical", 80),
    Sketcher.Constraint("Horizontal", 81),
    Sketcher.Constraint("Vertical", 82),
    Sketcher.Constraint("Horizontal", 83),
    Sketcher.Constraint("Symmetric", 25, 2, 36, 2, -2),
    Sketcher.Constraint("Symmetric", 35, 2, 38, 2, -2),
    Sketcher.Constraint("Symmetric", 33, 2, 40, 2, -2),
    Sketcher.Constraint("Symmetric", 31, 2, 42, 2, -2),
    Sketcher.Constraint("Symmetric", 29, 2, 44, 2, -2),
    Sketcher.Constraint("Symmetric", 27, 2, 46, 2, -2),
    Sketcher.Constraint("Symmetric", 13, 2, 48, 2, -2),
    Sketcher.Constraint("Symmetric", 23, 2, 50, 2, -2),
    Sketcher.Constraint("Symmetric", 21, 2, 52, 2, -2),
    Sketcher.Constraint("Symmetric", 19, 2, 54, 2, -2),
    Sketcher.Constraint("Symmetric", 17, 2, 56, 2, -2),
    Sketcher.Constraint("Symmetric", 15, 2, 58, 2, -2),
    Sketcher.Constraint("Symmetric", 1, 2, 72, 2, -2),
    Sketcher.Constraint("Symmetric", 11, 2, 74, 2, -2),
    Sketcher.Constraint("Symmetric", 9, 2, 76, 2, -2),
    Sketcher.Constraint("Symmetric", 7, 2, 78, 2, -2),
    Sketcher.Constraint("Symmetric", 5, 2, 80, 2, -2),
    Sketcher.Constraint("Symmetric", 3, 2, 82, 2, -2),
    Sketcher.Constraint("Horizontal", 5, 2, 8, 2),
    Sketcher.Constraint("Horizontal", 3, 2, 10, 2),
    Sketcher.Constraint("Horizontal", 1, 2, 12, 2),
    Sketcher.Constraint("Horizontal", 11, 2, 14, 2),
    Sketcher.Constraint("Horizontal", 9, 2, 16, 2),
    Sketcher.Constraint("Horizontal", 7, 2, 18, 2),
    Sketcher.Constraint("Horizontal", 17, 2, 20, 2),
    Sketcher.Constraint("Horizontal", 15, 2, 22, 2),
    Sketcher.Constraint("Horizontal", 13, 2, 24, 2),
    Sketcher.Constraint("Horizontal", 23, 2, 26, 2),
    Sketcher.Constraint("Horizontal", 21, 2, 28, 2),
    Sketcher.Constraint("Horizontal", 19, 2, 30, 2),
    Sketcher.Constraint("Horizontal", 29, 2, 32, 2),
    Sketcher.Constraint("Horizontal", 27, 2, 34, 2),
    Sketcher.Constraint("Horizontal", 49, 2, 60, 2),
    Sketcher.Constraint("Horizontal", 59, 2, 62, 2),
    Sketcher.Constraint("Horizontal", 57, 2, 64, 2),
    Sketcher.Constraint("Horizontal", 55, 2, 66, 2),
    Sketcher.Constraint("Horizontal", 65, 2, 68, 2),
    Sketcher.Constraint("Horizontal", 63, 2, 70, 2),
    Sketcher.Constraint("Vertical", 2, 2, 5, 2),
    Sketcher.Constraint("Vertical", 0, 2, 7, 2),
    Sketcher.Constraint("Vertical", 14, 2, 17, 2),
    Sketcher.Constraint("Vertical", 12, 2, 19, 2),
    Sketcher.Constraint("Vertical", 26, 2, 29, 2),
    Sketcher.Constraint("Vertical", 24, 2, 31, 2),
    Sketcher.Constraint("Vertical", 62, 2, 65, 2),
    Sketcher.Constraint("Vertical", 60, 2, 67, 2),
    Sketcher.Constraint("Equal", 5, 9),
    Sketcher.Constraint("Equal", 7, 13),
    Sketcher.Constraint("Equal", 11, 15),
    Sketcher.Constraint("Equal", 17, 21),
    Sketcher.Constraint("Equal", 19, 25),
    Sketcher.Constraint("Equal", 23, 27),
    Sketcher.Constraint("Equal", 29, 33),
    Sketcher.Constraint("Equal", 55, 61),
    Sketcher.Constraint("Equal", 59, 63),
    Sketcher.Constraint("Equal", 65, 69),
    Sketcher.Constraint("Equal", 2, 6),
    Sketcher.Constraint("DistanceY", 0, 1, 0, 2, 5.9),
    Sketcher.Constraint("DistanceY", 4, 2, 4, 1, 2.2),
    Sketcher.Constraint("DistanceX", 1, 1, 1, 2, 2.85),
    Sketcher.Constraint("DistanceX", 3, 1, 3, 2, 1.25),
    Sketcher.Constraint("DistanceX", 0, 2, -1, 1, 86.425),
    Sketcher.Constraint("DistanceX", 12, 2, -1, 1, 46.425),
    Sketcher.Constraint("DistanceX", 24, 2, -1, 1, 16.425),
    Sketcher.Constraint("DistanceX", -1, 1, 60, 2, 63.575),
    Sketcher.Constraint("DistanceY", -1, 1, 0, 2, 48.454399),
])
sketch2.setExpression("Constraints[225]", "Params.sketch2_height")
sketch2.setExpression("Constraints[226]", "Params.sketch2_height2")
sketch2.setExpression("Constraints[227]", "Params.sketch2_width")
sketch2.setExpression("Constraints[228]", "Params.sketch2_width2")
pocket1 = body.newObject("PartDesign::Pocket", "Pocket")
pocket1.Profile = sketch2
pocket1.setExpression("Length", "Params.pocket1_length")
pocket1.Reversed = True

doc.recompute()
